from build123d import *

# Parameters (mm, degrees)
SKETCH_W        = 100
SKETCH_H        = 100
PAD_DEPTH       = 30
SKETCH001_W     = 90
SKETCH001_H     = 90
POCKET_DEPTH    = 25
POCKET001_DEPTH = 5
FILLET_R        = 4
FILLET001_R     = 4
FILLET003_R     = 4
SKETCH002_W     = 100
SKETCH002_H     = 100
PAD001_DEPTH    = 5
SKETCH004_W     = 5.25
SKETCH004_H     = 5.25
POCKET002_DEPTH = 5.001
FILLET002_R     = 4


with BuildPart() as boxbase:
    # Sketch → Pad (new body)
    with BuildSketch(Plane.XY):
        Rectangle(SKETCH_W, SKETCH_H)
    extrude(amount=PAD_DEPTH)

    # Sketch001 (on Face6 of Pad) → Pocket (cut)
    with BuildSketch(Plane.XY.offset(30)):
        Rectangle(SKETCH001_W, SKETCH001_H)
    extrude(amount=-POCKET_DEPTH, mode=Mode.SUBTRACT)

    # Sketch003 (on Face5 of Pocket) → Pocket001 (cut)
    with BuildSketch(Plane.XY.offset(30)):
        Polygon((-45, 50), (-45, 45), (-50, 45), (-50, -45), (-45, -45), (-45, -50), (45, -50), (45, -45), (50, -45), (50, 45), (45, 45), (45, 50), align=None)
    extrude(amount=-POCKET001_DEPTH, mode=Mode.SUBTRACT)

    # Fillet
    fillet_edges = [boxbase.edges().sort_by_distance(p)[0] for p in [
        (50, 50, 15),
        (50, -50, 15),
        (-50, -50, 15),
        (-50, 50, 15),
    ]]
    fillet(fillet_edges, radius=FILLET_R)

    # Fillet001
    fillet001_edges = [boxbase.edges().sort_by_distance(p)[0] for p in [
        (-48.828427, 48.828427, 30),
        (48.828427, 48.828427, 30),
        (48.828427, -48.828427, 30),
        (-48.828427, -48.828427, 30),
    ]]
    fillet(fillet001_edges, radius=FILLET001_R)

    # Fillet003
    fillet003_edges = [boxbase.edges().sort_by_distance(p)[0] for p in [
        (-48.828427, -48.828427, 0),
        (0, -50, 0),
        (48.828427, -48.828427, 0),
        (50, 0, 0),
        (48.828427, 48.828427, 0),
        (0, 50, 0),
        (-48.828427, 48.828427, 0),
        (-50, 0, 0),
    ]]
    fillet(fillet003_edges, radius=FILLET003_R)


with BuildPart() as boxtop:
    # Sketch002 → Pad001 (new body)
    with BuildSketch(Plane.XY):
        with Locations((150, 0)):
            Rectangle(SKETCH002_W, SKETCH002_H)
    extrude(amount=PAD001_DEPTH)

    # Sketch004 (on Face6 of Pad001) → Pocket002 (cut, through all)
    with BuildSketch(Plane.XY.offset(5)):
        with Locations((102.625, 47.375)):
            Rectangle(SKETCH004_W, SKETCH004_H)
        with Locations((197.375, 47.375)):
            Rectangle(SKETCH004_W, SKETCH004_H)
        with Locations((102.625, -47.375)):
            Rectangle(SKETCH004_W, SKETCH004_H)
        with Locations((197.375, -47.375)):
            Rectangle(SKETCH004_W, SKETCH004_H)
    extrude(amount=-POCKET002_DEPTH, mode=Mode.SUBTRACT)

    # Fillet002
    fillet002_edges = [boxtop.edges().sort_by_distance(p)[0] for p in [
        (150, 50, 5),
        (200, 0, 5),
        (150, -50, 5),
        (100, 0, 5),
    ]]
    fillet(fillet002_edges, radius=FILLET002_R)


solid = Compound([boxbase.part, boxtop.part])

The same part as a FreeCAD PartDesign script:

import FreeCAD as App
import Part
import Sketcher


def edges_at(feature, points):
    """Names of the edges that pass closest to the given points."""
    edges = feature.Shape.Edges
    near = lambda p: min(range(len(edges)), key=lambda i: edges[i].distToShape(Part.Vertex(*p))[0])
    return sorted({f"Edge{near(p) + 1}" for p in points})

doc = App.newDocument("Part")
body = doc.addObject("PartDesign::Body", "Body")

sketch1 = body.newObject("Sketcher::SketchObject", "Sketch")
sketch1.AttachmentSupport = (doc.getObject("XY_Plane"), [""])
sketch1.MapMode = "FlatFace"
sketch1.addGeometry([
    Part.LineSegment(App.Vector(-50, 50, 0), App.Vector(-50, -50, 0)),
    Part.LineSegment(App.Vector(-50, -50, 0), App.Vector(50, -50, 0)),
    Part.LineSegment(App.Vector(50, -50, 0), App.Vector(50, 50, 0)),
    Part.LineSegment(App.Vector(50, 50, 0), App.Vector(-50, 50, 0)),
], False)
sketch1.addConstraint([
    Sketcher.Constraint("Coincident", 0, 2, 1, 1),
    Sketcher.Constraint("Coincident", 1, 2, 2, 1),
    Sketcher.Constraint("Coincident", 2, 2, 3, 1),
    Sketcher.Constraint("Coincident", 3, 2, 0, 1),
    Sketcher.Constraint("Vertical", 0),
    Sketcher.Constraint("Horizontal", 1),
    Sketcher.Constraint("Vertical", 2),
    Sketcher.Constraint("Horizontal", 3),
    Sketcher.Constraint("Symmetric", 0, 2, 2, 2, -1, 1),
    Sketcher.Constraint("Equal", 3, 0),
    Sketcher.Constraint("DistanceX", 1, 1, 1, 2, 100.0),
])
pad1 = body.newObject("PartDesign::Pad", "Pad")
pad1.Profile = sketch1
pad1.Length = 30

sketch2 = body.newObject("Sketcher::SketchObject", "Sketch001")
sketch2.AttachmentSupport = (doc.getObject("XY_Plane"), [""])
sketch2.MapMode = "FlatFace"
sketch2.AttachmentOffset = App.Placement(App.Vector(0, 0, 30), App.Rotation())
sketch2.addGeometry([
    Part.LineSegment(App.Vector(-45, 45, 0), App.Vector(-45, -45, 0)),
    Part.LineSegment(App.Vector(-45, -45, 0), App.Vector(45, -45, 0)),
    Part.LineSegment(App.Vector(45, -45, 0), App.Vector(45, 45, 0)),
    Part.LineSegment(App.Vector(45, 45, 0), App.Vector(-45, 45, 0)),
], False)
sketch2.addConstraint([
    Sketcher.Constraint("Coincident", 0, 2, 1, 1),
    Sketcher.Constraint("Coincident", 1, 2, 2, 1),
    Sketcher.Constraint("Coincident", 2, 2, 3, 1),
    Sketcher.Constraint("Coincident", 3, 2, 0, 1),
    Sketcher.Constraint("Vertical", 0),
    Sketcher.Constraint("Horizontal", 1),
    Sketcher.Constraint("Vertical", 2),
    Sketcher.Constraint("Horizontal", 3),
    Sketcher.Constraint("Symmetric", 0, 2, 2, 2, -1, 1),
    Sketcher.Constraint("Equal", 3, 0),
    Sketcher.Constraint("DistanceX", 1, 1, 1, 2, 90.0),
])
pocket1 = body.newObject("PartDesign::Pocket", "Pocket")
pocket1.Profile = sketch2
pocket1.Length = 25

sketch3 = body.newObject("Sketcher::SketchObject", "Sketch002")
sketch3.AttachmentSupport = (doc.getObject("XY_Plane"), [""])
sketch3.MapMode = "FlatFace"
sketch3.AttachmentOffset = App.Placement(App.Vector(0, 0, 30), App.Rotation())
sketch3.addGeometry([
    Part.LineSegment(App.Vector(-45, 50, 0), App.Vector(-45, 45, 0)),
    Part.LineSegment(App.Vector(-45, 45, 0), App.Vector(-50, 45, 0)),
    Part.LineSegment(App.Vector(-50, 45, 0), App.Vector(-50, -45, 0)),
    Part.LineSegment(App.Vector(-50, -45, 0), App.Vector(-45, -45, 0)),
    Part.LineSegment(App.Vector(-45, -45, 0), App.Vector(-45, -50, 0)),
    Part.LineSegment(App.Vector(-45, -50, 0), App.Vector(45, -50, 0)),
    Part.LineSegment(App.Vector(45, -50, 0), App.Vector(45, -45, 0)),
    Part.LineSegment(App.Vector(45, -45, 0), App.Vector(50, -45, 0)),
    Part.LineSegment(App.Vector(50, -45, 0), App.Vector(50, 45, 0)),
    Part.LineSegment(App.Vector(50, 45, 0), App.Vector(45, 45, 0)),
    Part.LineSegment(App.Vector(45, 45, 0), App.Vector(45, 50, 0)),
    Part.LineSegment(App.Vector(45, 50, 0), App.Vector(-45, 50, 0)),
], False)
sketch3.addConstraint([
    Sketcher.Constraint("Coincident", 0, 2, 1, 1),
    Sketcher.Constraint("Coincident", 1, 2, 2, 1),
    Sketcher.Constraint("Coincident", 2, 2, 3, 1),
    Sketcher.Constraint("Coincident", 3, 2, 4, 1),
    Sketcher.Constraint("Coincident", 4, 2, 5, 1),
    Sketcher.Constraint("Coincident", 5, 2, 6, 1),
    Sketcher.Constraint("Coincident", 6, 2, 7, 1),
    Sketcher.Constraint("Coincident", 7, 2, 8, 1),
    Sketcher.Constraint("Coincident", 8, 2, 9, 1),
    Sketcher.Constraint("Coincident", 9, 2, 10, 1),
    Sketcher.Constraint("Coincident", 10, 2, 11, 1),
    Sketcher.Constraint("Coincident", 11, 2, 0, 1),
    Sketcher.Constraint("Vertical", 0),
    Sketcher.Constraint("Horizontal", 1),
    Sketcher.Constraint("Vertical", 2),
    Sketcher.Constraint("Horizontal", 3),
    Sketcher.Constraint("Vertical", 4),
    Sketcher.Constraint("Horizontal", 5),
    Sketcher.Constraint("Vertical", 6),
    Sketcher.Constraint("Horizontal", 7),
    Sketcher.Constraint("Vertical", 8),
    Sketcher.Constraint("Horizontal", 9),
    Sketcher.Constraint("Vertical", 10),
    Sketcher.Constraint("Horizontal", 11),
    Sketcher.Constraint("Symmetric", 0, 2, 6, 2, -1, 1),
    Sketcher.Constraint("Symmetric", 2, 2, 8, 2, -1, 1),
    Sketcher.Constraint("Symmetric", 4, 2, 10, 2, -1, 1),
    Sketcher.Constraint("Symmetric", 3, 2, 6, 2, -2),
    Sketcher.Constraint("Equal", 9, 0),
    Sketcher.Constraint("Equal", 11, 2),
    Sketcher.Constraint("DistanceX", 1, 2, 1, 1, 5.0),
    Sketcher.Constraint("DistanceX", 5, 1, 5, 2, 90.0),
])
pocket2 = body.newObject("PartDesign::Pocket", "Pocket001")
pocket2.Profile = sketch3
pocket2.Length = 5
doc.recompute()

fillet = body.newObject("PartDesign::Fillet", "Fillet")
fillet.Base = (pocket2, edges_at(pocket2, [
    (50, 50, 15),
    (50, -50, 15),
    (-50, -50, 15),
    (-50, 50, 15),
]))
fillet.Radius = 4
doc.recompute()

fillet2 = body.newObject("PartDesign::Fillet", "Fillet001")
fillet2.Base = (fillet, edges_at(fillet, [
    (-48.828, 48.828, 30),
    (48.828, 48.828, 30),
    (48.828, -48.828, 30),
    (-48.828, -48.828, 30),
]))
fillet2.Radius = 4
doc.recompute()

fillet3 = body.newObject("PartDesign::Fillet", "Fillet002")
fillet3.Base = (fillet2, edges_at(fillet2, [
    (-48.828, -48.828, 0),
    (0, -50, 0),
    (48.828, -48.828, 0),
    (50, 0, 0),
    (48.828, 48.828, 0),
    (0, 50, 0),
    (-48.828, 48.828, 0),
    (-50, 0, 0),
]))
fillet3.Radius = 4
body2 = doc.addObject("PartDesign::Body", "Body001")

sketch4 = body2.newObject("Sketcher::SketchObject", "Sketch003")
sketch4.AttachmentSupport = (doc.getObject("XY_Plane001"), [""])
sketch4.MapMode = "FlatFace"
sketch4.addGeometry([
    Part.LineSegment(App.Vector(100, 50, 0), App.Vector(100, -50, 0)),
    Part.LineSegment(App.Vector(100, -50, 0), App.Vector(200, -50, 0)),
    Part.LineSegment(App.Vector(200, -50, 0), App.Vector(200, 50, 0)),
    Part.LineSegment(App.Vector(200, 50, 0), App.Vector(100, 50, 0)),
], False)
sketch4.addConstraint([
    Sketcher.Constraint("Coincident", 0, 2, 1, 1),
    Sketcher.Constraint("Coincident", 1, 2, 2, 1),
    Sketcher.Constraint("Coincident", 2, 2, 3, 1),
    Sketcher.Constraint("Coincident", 3, 2, 0, 1),
    Sketcher.Constraint("Vertical", 0),
    Sketcher.Constraint("Horizontal", 1),
    Sketcher.Constraint("Vertical", 2),
    Sketcher.Constraint("Horizontal", 3),
    Sketcher.Constraint("Equal", 3, 0),
    Sketcher.Constraint("DistanceX", 1, 1, 1, 2, 100.0),
    Sketcher.Constraint("DistanceX", -1, 1, 0, 2, 100.0),
    Sketcher.Constraint("DistanceY", 0, 2, -1, 1, 50.0),
])
pad2 = body2.newObject("PartDesign::Pad", "Pad001")
pad2.Profile = sketch4
pad2.Length = 5

sketch5 = body2.newObject("Sketcher::SketchObject", "Sketch004")
sketch5.AttachmentSupport = (doc.getObject("XY_Plane001"), [""])
sketch5.MapMode = "FlatFace"
sketch5.AttachmentOffset = App.Placement(App.Vector(0, 0, 5), App.Rotation())
sketch5.addGeometry([
    Part.LineSegment(App.Vector(100, 50, 0), App.Vector(100, 45, 0)),
    Part.LineSegment(App.Vector(100, 45, 0), App.Vector(105, 45, 0)),
    Part.LineSegment(App.Vector(105, 45, 0), App.Vector(105, 50, 0)),
    Part.LineSegment(App.Vector(105, 50, 0), App.Vector(100, 50, 0)),
    Part.LineSegment(App.Vector(195, 50, 0), App.Vector(195, 45, 0)),
    Part.LineSegment(App.Vector(195, 45, 0), App.Vector(200, 45, 0)),
    Part.LineSegment(App.Vector(200, 45, 0), App.Vector(200, 50, 0)),
    Part.LineSegment(App.Vector(200, 50, 0), App.Vector(195, 50, 0)),
    Part.LineSegment(App.Vector(100, -45, 0), App.Vector(100, -50, 0)),
    Part.LineSegment(App.Vector(100, -50, 0), App.Vector(105, -50, 0)),
    Part.LineSegment(App.Vector(105, -50, 0), App.Vector(105, -45, 0)),
    Part.LineSegment(App.Vector(105, -45, 0), App.Vector(100, -45, 0)),
    Part.LineSegment(App.Vector(195, -45, 0), App.Vector(195, -50, 0)),
    Part.LineSegment(App.Vector(195, -50, 0), App.Vector(200, -50, 0)),
    Part.LineSegment(App.Vector(200, -50, 0), App.Vector(200, -45, 0)),
    Part.LineSegment(App.Vector(200, -45, 0), App.Vector(195, -45, 0)),
], False)
sketch5.addConstraint([
    Sketcher.Constraint("Coincident", 0, 2, 1, 1),
    Sketcher.Constraint("Coincident", 1, 2, 2, 1),
    Sketcher.Constraint("Coincident", 2, 2, 3, 1),
    Sketcher.Constraint("Coincident", 3, 2, 0, 1),
    Sketcher.Constraint("Coincident", 4, 2, 5, 1),
    Sketcher.Constraint("Coincident", 5, 2, 6, 1),
    Sketcher.Constraint("Coincident", 6, 2, 7, 1),
    Sketcher.Constraint("Coincident", 7, 2, 4, 1),
    Sketcher.Constraint("Coincident", 8, 2, 9, 1),
    Sketcher.Constraint("Coincident", 9, 2, 10, 1),
    Sketcher.Constraint("Coincident", 10, 2, 11, 1),
    Sketcher.Constraint("Coincident", 11, 2, 8, 1),
    Sketcher.Constraint("Coincident", 12, 2, 13, 1),
    Sketcher.Constraint("Coincident", 13, 2, 14, 1),
    Sketcher.Constraint("Coincident", 14, 2, 15, 1),
    Sketcher.Constraint("Coincident", 15, 2, 12, 1),
    Sketcher.Constraint("Vertical", 0),
    Sketcher.Constraint("Horizontal", 1),
    Sketcher.Constraint("Vertical", 2),
    Sketcher.Constraint("Horizontal", 3),
    Sketcher.Constraint("Vertical", 4),
    Sketcher.Constraint("Horizontal", 5),
    Sketcher.Constraint("Vertical", 6),
    Sketcher.Constraint("Horizontal", 7),
    Sketcher.Constraint("Vertical", 8),
    Sketcher.Constraint("Horizontal", 9),
    Sketcher.Constraint("Vertical", 10),
    Sketcher.Constraint("Horizontal", 11),
    Sketcher.Constraint("Vertical", 12),
    Sketcher.Constraint("Horizontal", 13),
    Sketcher.Constraint("Vertical", 14),
    Sketcher.Constraint("Horizontal", 15),
    Sketcher.Constraint("Symmetric", 3, 2, 8, 2, -1),
    Sketcher.Constraint("Symmetric", 1, 2, 10, 2, -1),
    Sketcher.Constraint("Symmetric", 7, 2, 12, 2, -1),
    Sketcher.Constraint("Symmetric", 5, 2, 14, 2, -1),
    Sketcher.Constraint("Horizontal", 1, 2, 4, 2),
    Sketcher.Constraint("Horizontal", 3, 2, 6, 2),
    Sketcher.Constraint("Equal", 3, 5),
    Sketcher.Constraint("Equal", 15, 0),
    Sketcher.Constraint("DistanceX", -1, 1, 0, 2, 100.0),
    Sketcher.Constraint("DistanceY", -1, 1, 2, 2, 50.0),
    Sketcher.Constraint("DistanceX", -1, 1, 5, 2, 200.0),
    Sketcher.Constraint("DistanceX", 1, 1, 1, 2, 5.25),
])
pocket3 = body2.newObject("PartDesign::Pocket", "Pocket002")
pocket3.Profile = sketch5
pocket3.Type = "ThroughAll"
doc.recompute()

fillet4 = body2.newObject("PartDesign::Fillet", "Fillet003")
fillet4.Base = (pocket3, edges_at(pocket3, [
    (150, 50, 5),
    (200, 0, 5),
    (150, -50, 5),
    (100, 0, 5),
]))
fillet4.Radius = 4

doc.recompute()
